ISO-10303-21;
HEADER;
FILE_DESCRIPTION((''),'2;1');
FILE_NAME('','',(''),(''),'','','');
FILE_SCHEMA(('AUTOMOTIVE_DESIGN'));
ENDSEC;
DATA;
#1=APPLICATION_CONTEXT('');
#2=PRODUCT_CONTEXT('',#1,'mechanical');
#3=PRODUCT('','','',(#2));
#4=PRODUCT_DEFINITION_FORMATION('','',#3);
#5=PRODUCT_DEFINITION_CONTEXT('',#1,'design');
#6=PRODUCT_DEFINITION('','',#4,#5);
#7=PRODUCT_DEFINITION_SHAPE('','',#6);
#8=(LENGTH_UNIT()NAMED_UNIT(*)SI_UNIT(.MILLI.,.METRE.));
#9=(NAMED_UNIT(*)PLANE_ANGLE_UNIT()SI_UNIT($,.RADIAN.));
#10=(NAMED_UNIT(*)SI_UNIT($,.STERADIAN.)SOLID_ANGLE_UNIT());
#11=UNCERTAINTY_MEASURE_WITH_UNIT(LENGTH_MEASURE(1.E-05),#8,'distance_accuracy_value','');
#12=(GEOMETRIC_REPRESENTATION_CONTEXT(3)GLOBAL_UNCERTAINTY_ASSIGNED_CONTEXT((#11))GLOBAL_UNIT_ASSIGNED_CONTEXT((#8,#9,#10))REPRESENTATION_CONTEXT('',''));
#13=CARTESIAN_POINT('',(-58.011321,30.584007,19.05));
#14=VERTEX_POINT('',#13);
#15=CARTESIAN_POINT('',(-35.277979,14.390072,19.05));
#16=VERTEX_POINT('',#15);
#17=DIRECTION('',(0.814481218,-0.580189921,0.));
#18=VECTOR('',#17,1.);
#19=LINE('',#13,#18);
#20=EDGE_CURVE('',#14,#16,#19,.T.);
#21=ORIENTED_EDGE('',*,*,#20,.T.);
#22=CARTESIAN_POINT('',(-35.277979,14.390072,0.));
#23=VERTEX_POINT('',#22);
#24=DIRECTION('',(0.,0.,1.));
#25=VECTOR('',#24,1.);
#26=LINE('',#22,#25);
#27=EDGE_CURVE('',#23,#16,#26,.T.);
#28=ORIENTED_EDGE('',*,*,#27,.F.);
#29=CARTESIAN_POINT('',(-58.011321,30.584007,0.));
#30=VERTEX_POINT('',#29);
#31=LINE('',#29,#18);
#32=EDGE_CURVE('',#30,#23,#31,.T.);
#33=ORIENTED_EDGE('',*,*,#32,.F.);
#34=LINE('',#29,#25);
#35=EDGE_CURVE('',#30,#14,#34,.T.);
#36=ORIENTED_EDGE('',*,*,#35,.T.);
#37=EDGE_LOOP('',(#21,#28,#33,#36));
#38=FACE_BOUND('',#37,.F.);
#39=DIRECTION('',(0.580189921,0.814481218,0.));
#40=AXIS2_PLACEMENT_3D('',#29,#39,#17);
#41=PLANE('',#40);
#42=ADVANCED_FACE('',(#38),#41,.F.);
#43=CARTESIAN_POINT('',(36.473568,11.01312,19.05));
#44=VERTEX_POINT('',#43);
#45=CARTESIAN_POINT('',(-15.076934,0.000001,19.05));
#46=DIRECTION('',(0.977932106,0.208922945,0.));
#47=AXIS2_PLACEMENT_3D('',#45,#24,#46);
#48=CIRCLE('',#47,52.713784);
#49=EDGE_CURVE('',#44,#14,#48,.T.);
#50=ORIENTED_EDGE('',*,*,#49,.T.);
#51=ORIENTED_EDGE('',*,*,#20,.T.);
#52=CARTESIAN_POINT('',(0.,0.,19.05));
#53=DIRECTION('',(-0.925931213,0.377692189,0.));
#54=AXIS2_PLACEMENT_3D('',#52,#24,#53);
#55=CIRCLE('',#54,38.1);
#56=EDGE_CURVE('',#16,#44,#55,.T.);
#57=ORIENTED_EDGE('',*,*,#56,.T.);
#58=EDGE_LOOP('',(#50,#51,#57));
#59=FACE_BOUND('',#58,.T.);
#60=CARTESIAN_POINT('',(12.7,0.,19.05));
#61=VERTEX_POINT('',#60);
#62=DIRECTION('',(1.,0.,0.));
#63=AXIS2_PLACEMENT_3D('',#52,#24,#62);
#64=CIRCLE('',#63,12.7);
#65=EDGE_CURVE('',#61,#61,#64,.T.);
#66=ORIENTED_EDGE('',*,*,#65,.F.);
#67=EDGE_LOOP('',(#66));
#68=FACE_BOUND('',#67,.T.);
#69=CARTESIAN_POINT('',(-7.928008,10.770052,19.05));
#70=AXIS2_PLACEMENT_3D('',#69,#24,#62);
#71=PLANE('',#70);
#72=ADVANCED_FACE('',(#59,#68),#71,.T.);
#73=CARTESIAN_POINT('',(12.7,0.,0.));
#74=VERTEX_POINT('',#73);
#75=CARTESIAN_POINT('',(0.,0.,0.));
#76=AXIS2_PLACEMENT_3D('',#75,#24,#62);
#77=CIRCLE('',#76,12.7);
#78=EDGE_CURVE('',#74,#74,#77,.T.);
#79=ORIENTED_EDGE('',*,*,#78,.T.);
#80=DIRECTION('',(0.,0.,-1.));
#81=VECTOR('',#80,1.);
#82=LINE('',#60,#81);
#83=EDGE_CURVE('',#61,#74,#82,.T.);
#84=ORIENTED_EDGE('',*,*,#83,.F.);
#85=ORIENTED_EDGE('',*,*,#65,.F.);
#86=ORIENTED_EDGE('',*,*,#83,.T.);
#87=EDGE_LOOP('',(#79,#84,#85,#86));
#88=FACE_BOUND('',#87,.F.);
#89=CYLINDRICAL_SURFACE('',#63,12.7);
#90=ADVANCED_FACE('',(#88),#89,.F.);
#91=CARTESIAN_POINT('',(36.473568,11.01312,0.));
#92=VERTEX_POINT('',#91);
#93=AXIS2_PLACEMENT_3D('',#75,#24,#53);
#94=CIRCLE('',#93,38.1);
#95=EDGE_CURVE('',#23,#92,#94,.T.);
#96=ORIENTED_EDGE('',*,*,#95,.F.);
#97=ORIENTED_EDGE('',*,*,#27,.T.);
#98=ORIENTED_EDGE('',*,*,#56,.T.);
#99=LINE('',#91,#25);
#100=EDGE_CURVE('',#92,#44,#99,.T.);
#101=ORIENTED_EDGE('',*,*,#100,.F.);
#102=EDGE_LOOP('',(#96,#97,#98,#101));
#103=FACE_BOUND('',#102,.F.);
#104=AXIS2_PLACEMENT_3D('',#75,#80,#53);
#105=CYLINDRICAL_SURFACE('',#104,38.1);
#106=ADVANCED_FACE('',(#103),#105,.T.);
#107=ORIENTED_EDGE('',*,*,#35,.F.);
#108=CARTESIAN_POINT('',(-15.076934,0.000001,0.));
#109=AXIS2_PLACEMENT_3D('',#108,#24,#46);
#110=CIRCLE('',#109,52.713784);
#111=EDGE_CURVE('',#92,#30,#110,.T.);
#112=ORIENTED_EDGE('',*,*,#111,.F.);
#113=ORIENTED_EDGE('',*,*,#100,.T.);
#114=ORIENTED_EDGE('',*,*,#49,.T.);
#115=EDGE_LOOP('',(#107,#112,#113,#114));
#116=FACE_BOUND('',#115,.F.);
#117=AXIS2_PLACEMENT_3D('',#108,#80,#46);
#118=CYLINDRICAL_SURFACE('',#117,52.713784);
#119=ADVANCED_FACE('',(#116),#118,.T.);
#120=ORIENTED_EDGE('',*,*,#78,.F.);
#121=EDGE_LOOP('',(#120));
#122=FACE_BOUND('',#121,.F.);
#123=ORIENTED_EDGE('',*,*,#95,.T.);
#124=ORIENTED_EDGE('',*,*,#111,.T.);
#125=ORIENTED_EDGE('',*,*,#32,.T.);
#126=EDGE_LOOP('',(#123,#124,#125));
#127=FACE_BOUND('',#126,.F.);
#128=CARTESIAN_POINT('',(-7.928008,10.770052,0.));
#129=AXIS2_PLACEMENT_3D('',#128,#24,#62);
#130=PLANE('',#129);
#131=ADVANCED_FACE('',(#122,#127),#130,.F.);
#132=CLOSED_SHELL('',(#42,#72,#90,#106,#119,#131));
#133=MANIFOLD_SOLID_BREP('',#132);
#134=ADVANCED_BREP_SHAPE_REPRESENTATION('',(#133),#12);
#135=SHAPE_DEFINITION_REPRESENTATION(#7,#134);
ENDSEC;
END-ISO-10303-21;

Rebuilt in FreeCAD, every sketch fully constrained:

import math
import FreeCAD as App
import Part
import Sketcher
from FreeCAD import Vector
Q = App.Units.Quantity

doc = App.newDocument("Part")
params = doc.addObject("Spreadsheet::Sheet", "Params")
for row, (alias, value) in enumerate([
    ("sketch1_radius", "1.5 in"),
    ("pad1_length", "0.75 in"),
    ("sketch2_diameter", "1 in"),
    ("pocket1_length", "1 in"),
], start=1):
    params.set(f"A{row}", alias)
    params.set(f"B{row}", "=" + value)
    params.setAlias(f"B{row}", alias)

body = doc.addObject("PartDesign::Body", "Body")

# Sketch on XY plane
sketch1 = body.newObject("Sketcher::SketchObject", "Sketch")
sketch1.AttachmentSupport = (doc.getObject("XY_Plane"), [""])
sketch1.MapMode = "FlatFace"
sketch1.addGeometry([
    Part.LineSegment(Vector(-58, 31, 0), Vector(-35, 14, 0)),
    Part.ArcOfCircle(Part.Circle(Vector(0, 0, 0), Vector(0, 0, 1), 38), math.radians(158), math.radians(377)),
    Part.ArcOfCircle(Part.Circle(Vector(-15, 0, 0), Vector(0, 0, 1), 53), math.radians(12), math.radians(145)),
], False)
sketch1.addConstraint([
    Sketcher.Constraint("Coincident", 0, 2, 1, 1),
    Sketcher.Constraint("Coincident", 1, 2, 2, 1),
    Sketcher.Constraint("Coincident", 2, 2, 0, 1),
    Sketcher.Constraint("Coincident", 1, 3, -1, 1),
    Sketcher.Constraint("PointOnObject", 2, 3, -1),
    Sketcher.Constraint("Radius", 1, Q("1.5 in")),
    Sketcher.Constraint("Radius", 2, Q("52.713784 mm")),
    Sketcher.Constraint("DistanceX", 2, 3, 1, 2, Q("51.550502 mm")),
    Sketcher.Constraint("DistanceX", 0, 2, -1, 1, Q("35.277979 mm")),
    Sketcher.Constraint("DistanceX", 2, 2, -1, 1, Q("58.011321 mm")),
])
sketch1.setExpression("Constraints[5]", "Params.sketch1_radius")
pad1 = body.newObject("PartDesign::Pad", "Pad")
pad1.Profile = sketch1
pad1.setExpression("Length", "Params.pad1_length")

# Sketch on XY plane
sketch2 = body.newObject("Sketcher::SketchObject", "Sketch001")
sketch2.AttachmentSupport = (doc.getObject("XY_Plane"), [""])
sketch2.MapMode = "FlatFace"
sketch2.AttachmentOffset = App.Placement(Vector(0, 0, 0.75 * 25.4), App.Rotation())
sketch2.addGeometry(Part.Circle(Vector(0, 0, 0), Vector(0, 0, 1), 13), False)
sketch2.addConstraint([
    Sketcher.Constraint("Coincident", 0, 3, -1, 1),
    Sketcher.Constraint("Diameter", 0, Q("1 in")),
])
sketch2.setExpression("Constraints[1]", "Params.sketch2_diameter")
pocket1 = body.newObject("PartDesign::Pocket", "Pocket")
pocket1.Profile = sketch2
pocket1.setExpression("Length", "Params.pocket1_length")

doc.recompute()
